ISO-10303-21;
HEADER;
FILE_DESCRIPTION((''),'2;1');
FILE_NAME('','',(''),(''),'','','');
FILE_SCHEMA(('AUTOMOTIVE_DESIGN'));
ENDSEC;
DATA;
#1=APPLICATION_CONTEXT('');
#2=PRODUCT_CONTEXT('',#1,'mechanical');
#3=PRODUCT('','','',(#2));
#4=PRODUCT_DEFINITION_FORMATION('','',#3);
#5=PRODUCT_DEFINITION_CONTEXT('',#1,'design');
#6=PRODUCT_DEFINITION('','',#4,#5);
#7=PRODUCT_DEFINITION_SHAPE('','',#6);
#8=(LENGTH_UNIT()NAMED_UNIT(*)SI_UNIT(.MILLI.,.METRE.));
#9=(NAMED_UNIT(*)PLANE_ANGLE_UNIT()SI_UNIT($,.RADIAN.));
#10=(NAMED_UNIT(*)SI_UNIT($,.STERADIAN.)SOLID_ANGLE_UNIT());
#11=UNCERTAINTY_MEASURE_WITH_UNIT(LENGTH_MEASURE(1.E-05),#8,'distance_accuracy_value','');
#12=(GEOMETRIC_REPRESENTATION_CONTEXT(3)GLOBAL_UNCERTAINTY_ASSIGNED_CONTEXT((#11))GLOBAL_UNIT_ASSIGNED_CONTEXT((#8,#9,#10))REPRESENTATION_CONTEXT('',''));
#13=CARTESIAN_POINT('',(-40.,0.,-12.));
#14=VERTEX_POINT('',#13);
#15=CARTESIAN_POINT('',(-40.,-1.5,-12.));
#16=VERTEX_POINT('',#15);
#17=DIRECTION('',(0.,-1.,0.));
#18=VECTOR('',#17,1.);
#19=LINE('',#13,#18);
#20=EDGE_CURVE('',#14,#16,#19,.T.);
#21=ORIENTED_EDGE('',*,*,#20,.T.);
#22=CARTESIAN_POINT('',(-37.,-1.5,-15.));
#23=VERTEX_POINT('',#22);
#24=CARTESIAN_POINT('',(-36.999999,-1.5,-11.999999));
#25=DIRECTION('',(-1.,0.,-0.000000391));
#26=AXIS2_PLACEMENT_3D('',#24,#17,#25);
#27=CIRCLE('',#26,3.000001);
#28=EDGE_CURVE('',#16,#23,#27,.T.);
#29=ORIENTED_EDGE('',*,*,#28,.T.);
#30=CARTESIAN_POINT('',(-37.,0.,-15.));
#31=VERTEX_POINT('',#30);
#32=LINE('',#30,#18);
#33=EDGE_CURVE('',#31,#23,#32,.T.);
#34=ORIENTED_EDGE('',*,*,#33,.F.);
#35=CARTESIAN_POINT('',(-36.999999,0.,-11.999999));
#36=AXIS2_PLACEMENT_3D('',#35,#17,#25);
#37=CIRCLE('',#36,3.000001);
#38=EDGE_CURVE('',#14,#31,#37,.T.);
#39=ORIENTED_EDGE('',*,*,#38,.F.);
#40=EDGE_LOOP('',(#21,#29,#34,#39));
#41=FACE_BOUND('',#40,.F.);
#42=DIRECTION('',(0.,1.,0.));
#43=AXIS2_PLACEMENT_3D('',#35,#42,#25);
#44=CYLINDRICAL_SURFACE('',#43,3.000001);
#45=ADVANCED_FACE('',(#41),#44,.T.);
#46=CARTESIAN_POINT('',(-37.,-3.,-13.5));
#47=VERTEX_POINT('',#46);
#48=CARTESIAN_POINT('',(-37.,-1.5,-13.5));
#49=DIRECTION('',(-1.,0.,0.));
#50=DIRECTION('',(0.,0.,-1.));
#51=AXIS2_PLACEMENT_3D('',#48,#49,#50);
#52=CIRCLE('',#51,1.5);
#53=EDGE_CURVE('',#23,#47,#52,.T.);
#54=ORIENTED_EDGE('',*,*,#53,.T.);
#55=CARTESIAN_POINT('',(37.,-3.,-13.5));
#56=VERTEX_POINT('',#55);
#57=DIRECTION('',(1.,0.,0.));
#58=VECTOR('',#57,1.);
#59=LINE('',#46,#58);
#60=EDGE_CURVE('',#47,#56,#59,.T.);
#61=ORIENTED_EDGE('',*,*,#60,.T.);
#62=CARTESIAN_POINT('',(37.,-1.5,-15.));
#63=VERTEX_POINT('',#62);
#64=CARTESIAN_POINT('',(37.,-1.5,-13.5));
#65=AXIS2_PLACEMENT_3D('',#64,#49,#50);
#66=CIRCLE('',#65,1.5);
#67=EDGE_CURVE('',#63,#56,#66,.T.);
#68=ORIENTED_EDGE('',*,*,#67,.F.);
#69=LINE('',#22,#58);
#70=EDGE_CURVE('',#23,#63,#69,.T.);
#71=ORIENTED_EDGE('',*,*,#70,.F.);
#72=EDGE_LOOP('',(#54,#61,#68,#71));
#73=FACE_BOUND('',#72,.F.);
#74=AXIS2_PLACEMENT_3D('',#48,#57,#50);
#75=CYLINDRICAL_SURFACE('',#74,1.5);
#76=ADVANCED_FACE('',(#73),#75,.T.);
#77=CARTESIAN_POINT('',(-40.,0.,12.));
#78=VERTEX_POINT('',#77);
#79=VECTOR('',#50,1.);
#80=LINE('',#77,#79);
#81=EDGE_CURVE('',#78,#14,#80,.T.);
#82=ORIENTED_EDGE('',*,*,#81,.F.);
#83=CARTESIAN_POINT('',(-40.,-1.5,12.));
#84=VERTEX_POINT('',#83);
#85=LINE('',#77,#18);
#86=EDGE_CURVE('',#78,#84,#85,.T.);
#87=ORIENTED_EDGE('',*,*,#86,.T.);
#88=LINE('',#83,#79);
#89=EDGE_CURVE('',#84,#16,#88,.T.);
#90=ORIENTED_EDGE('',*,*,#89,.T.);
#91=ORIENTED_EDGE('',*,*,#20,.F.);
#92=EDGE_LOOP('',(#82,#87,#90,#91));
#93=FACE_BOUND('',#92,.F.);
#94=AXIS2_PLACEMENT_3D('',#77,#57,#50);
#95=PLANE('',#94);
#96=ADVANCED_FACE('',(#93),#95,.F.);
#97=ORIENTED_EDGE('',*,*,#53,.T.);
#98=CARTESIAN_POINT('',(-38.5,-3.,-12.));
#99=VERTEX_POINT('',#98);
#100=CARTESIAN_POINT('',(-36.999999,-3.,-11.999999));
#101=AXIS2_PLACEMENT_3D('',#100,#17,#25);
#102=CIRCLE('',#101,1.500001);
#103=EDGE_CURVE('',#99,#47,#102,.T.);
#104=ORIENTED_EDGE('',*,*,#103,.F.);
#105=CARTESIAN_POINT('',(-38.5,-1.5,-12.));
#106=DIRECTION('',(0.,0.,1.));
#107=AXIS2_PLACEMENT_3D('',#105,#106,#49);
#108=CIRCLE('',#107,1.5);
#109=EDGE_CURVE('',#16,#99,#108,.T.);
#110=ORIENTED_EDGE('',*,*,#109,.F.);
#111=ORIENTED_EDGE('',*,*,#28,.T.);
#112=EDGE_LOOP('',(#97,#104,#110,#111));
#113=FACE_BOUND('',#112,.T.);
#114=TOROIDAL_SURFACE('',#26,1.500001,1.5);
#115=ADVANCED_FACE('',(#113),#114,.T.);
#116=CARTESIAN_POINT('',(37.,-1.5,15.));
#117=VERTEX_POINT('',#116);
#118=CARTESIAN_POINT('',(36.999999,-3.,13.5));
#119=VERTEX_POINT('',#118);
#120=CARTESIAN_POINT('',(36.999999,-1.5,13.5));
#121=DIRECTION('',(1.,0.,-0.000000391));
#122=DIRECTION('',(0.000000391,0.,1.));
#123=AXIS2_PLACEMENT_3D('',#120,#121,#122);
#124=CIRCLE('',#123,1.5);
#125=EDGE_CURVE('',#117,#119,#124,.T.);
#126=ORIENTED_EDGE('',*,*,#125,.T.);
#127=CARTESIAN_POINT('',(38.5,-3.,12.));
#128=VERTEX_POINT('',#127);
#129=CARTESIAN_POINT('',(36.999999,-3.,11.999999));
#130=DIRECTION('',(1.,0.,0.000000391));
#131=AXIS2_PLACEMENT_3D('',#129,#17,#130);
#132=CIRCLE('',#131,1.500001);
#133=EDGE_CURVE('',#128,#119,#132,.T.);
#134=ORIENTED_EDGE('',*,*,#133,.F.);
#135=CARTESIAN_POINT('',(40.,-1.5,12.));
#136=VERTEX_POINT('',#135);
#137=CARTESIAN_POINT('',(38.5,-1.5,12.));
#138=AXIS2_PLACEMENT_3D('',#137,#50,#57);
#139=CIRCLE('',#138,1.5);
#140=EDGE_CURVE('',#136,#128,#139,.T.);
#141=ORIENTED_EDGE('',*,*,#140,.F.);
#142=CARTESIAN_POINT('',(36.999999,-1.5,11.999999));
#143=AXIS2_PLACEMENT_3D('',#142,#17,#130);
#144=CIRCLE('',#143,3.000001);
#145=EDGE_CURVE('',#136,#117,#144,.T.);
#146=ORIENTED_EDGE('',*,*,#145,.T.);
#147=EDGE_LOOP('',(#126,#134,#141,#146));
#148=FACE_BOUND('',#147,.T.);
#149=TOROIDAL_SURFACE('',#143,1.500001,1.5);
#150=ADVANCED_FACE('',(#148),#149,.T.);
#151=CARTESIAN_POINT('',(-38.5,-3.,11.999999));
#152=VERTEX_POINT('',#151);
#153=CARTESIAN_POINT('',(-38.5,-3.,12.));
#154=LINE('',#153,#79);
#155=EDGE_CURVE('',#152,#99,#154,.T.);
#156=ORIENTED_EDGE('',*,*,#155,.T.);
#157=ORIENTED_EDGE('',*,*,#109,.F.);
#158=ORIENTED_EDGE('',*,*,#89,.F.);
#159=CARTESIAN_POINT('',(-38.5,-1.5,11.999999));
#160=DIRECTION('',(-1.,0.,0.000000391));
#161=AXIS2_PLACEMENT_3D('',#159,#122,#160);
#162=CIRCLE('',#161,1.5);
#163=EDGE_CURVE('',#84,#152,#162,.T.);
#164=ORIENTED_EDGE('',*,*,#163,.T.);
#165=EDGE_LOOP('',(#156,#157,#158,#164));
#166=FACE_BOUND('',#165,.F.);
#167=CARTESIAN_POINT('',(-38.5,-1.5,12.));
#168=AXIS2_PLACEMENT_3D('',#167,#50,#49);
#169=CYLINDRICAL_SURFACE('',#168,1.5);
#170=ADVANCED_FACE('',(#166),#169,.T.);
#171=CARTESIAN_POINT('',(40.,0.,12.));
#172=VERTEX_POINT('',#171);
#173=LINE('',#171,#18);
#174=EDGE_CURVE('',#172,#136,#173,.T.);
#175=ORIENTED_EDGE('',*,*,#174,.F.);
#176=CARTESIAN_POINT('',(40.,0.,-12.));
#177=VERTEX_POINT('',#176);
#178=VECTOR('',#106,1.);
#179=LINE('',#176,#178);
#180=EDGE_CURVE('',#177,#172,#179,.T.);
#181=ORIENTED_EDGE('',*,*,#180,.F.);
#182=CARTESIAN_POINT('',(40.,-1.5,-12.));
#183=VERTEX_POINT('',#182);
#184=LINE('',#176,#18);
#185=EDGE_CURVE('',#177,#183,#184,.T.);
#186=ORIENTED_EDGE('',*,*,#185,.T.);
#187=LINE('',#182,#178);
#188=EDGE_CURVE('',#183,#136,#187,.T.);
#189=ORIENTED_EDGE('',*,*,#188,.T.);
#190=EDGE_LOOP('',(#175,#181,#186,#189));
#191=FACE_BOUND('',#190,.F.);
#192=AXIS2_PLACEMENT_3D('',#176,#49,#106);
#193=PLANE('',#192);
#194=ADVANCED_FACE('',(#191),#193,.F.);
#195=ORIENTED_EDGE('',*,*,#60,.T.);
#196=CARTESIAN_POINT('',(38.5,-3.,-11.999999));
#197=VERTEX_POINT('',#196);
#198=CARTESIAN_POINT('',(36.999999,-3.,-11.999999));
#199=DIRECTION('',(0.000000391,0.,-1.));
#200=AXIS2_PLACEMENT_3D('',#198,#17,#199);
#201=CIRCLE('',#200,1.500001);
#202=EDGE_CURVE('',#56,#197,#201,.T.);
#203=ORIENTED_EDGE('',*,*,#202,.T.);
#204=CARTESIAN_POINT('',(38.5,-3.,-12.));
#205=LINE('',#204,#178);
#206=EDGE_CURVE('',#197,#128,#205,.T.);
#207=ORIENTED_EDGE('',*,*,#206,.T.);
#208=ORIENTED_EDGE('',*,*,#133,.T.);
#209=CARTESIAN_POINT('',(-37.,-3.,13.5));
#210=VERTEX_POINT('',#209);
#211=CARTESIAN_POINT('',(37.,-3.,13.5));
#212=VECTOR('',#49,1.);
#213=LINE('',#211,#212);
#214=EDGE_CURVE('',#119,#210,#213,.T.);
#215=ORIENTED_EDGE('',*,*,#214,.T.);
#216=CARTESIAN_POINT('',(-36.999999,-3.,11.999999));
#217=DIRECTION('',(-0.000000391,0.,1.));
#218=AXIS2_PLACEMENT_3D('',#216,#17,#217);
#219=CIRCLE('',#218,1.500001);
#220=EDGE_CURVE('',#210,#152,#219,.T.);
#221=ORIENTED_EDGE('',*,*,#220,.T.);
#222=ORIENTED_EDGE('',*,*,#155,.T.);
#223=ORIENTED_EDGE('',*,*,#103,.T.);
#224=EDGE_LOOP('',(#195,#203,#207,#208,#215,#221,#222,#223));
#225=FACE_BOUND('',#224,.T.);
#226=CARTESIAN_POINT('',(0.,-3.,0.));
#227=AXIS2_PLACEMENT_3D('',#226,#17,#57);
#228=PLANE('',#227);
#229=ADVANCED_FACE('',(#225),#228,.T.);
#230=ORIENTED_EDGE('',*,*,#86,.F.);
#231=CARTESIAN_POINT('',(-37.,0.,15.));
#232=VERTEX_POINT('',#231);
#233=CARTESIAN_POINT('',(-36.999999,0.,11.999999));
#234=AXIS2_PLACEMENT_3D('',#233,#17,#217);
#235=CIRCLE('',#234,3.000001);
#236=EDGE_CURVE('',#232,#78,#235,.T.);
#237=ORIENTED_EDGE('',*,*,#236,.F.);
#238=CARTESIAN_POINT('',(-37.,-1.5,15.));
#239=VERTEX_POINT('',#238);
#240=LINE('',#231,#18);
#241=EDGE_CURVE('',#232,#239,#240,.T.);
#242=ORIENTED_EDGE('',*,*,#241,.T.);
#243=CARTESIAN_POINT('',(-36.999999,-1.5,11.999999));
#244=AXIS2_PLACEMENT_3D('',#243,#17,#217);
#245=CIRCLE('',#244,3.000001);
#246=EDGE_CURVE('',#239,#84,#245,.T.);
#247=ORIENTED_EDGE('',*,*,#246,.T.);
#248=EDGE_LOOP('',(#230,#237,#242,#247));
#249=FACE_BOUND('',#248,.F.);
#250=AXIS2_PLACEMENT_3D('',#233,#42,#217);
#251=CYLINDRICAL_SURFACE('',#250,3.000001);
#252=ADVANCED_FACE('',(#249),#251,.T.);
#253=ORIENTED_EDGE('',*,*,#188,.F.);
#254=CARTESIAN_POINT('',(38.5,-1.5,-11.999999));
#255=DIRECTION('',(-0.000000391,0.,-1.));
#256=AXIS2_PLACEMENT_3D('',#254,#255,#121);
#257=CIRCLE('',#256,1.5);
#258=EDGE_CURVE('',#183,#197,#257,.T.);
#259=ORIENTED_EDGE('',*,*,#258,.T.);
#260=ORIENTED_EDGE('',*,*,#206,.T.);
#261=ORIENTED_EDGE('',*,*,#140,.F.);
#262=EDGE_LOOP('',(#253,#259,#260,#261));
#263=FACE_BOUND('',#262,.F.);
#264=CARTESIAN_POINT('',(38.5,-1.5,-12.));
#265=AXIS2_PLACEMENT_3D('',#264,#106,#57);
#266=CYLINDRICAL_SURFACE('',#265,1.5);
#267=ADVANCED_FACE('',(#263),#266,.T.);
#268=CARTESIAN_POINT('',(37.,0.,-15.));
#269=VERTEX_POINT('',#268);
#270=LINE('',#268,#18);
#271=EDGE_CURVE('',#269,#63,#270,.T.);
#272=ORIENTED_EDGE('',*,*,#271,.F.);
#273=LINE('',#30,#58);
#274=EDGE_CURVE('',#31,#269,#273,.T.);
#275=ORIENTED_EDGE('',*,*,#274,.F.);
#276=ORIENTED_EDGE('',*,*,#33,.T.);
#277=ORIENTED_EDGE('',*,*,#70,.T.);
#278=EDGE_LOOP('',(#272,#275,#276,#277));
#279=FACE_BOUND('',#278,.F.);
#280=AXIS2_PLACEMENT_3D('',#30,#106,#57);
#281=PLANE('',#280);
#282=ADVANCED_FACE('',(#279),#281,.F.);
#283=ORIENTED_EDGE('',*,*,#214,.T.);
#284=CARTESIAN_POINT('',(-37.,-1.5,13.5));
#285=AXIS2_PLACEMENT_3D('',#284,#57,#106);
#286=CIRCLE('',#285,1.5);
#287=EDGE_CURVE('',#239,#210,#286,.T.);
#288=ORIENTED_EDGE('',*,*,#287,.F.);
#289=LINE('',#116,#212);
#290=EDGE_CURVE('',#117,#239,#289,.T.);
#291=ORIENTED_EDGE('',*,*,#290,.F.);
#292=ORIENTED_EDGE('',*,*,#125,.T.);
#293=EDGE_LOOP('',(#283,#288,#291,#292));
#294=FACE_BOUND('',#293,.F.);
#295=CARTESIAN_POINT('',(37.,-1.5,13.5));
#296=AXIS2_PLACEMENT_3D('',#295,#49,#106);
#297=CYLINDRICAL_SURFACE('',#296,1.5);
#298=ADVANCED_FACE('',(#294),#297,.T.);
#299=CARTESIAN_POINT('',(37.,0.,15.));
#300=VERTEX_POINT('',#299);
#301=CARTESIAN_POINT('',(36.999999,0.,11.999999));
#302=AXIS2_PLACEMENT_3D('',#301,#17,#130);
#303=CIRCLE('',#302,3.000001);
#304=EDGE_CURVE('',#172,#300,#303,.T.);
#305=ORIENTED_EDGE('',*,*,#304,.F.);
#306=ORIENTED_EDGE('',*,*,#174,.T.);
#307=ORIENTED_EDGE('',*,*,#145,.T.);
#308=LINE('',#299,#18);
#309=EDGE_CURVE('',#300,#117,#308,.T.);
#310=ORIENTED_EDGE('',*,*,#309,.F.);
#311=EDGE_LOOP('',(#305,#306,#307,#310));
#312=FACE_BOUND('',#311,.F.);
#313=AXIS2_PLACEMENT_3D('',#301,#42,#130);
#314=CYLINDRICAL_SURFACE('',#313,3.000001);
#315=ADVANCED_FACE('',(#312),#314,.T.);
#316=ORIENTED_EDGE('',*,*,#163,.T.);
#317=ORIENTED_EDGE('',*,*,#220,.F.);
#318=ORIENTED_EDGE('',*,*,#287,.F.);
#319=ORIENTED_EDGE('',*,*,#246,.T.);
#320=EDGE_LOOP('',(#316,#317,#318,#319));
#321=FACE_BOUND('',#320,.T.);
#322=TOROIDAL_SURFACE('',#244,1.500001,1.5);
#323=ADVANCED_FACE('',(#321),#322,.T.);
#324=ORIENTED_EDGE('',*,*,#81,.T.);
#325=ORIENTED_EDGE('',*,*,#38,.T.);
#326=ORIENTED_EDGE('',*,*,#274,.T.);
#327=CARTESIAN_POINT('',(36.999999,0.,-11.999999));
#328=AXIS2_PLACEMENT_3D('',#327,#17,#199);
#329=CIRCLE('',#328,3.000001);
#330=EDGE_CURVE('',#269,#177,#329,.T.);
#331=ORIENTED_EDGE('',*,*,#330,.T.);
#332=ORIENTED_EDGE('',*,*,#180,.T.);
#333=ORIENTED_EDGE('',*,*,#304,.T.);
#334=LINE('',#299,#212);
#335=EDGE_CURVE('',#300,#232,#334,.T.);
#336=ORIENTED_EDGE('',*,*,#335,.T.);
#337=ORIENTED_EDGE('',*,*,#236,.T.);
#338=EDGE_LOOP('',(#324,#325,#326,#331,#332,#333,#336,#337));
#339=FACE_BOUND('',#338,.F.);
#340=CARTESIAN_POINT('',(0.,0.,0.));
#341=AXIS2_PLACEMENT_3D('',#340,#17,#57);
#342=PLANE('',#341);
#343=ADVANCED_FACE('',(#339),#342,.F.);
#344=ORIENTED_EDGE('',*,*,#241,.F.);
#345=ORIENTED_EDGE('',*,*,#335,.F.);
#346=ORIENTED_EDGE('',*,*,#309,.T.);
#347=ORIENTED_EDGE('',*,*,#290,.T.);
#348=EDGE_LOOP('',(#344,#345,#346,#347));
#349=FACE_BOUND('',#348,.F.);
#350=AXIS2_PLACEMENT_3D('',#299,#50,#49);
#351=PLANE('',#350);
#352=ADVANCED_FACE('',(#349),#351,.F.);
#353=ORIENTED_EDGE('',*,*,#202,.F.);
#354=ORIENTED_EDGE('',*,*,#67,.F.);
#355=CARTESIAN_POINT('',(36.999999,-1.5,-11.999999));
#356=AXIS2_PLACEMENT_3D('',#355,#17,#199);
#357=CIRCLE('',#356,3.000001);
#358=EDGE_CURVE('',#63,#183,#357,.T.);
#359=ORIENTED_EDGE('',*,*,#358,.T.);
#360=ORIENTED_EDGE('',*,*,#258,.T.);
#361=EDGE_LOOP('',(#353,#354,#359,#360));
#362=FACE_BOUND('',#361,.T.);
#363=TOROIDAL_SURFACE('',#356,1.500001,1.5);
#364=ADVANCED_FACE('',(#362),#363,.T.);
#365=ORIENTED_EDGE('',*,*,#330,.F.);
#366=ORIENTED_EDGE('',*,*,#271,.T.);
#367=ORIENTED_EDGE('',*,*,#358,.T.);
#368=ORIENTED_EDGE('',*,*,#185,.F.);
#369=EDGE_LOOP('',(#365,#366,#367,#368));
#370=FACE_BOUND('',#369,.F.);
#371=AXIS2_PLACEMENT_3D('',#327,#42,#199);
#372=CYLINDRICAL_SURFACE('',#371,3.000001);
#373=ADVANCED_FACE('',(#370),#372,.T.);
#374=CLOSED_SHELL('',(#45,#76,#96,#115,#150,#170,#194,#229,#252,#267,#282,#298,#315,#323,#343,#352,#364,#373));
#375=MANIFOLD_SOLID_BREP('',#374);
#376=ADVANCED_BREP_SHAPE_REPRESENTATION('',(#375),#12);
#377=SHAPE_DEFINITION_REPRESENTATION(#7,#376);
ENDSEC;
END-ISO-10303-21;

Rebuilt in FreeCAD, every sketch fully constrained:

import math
import FreeCAD as App
import Part
import Sketcher

V = App.Vector
Q = App.Units.Quantity


def edges_at(feature, points):
    """Names of the edges that pass closest to the given points."""
    edges = feature.Shape.Edges
    near = lambda p: min(range(len(edges)), key=lambda i: edges[i].distToShape(Part.Vertex(*p))[0])
    return sorted({f"Edge{near(p) + 1}" for p in points})

doc = App.newDocument("Part")
body = doc.addObject("PartDesign::Body", "Body")

sketch1 = body.newObject("Sketcher::SketchObject", "Sketch")
sketch1.AttachmentSupport = (doc.getObject("XZ_Plane"), [""])
sketch1.MapMode = "FlatFace"
sketch1.addGeometry(Part.LineSegment(V(-37, -15, 0), V(37, -15, 0)), False)
sketch1.addGeometry(Part.ArcOfCircle(Part.Circle(V(36.999999, -11.999999, 0), V(0, 0, 1), 3.000001), math.radians(-89.999978), math.radians(-0.000022)), False)
sketch1.addGeometry(Part.LineSegment(V(40, -12, 0), V(40, 12, 0)), False)
sketch1.addGeometry(Part.ArcOfCircle(Part.Circle(V(36.999999, 11.999999, 0), V(0, 0, 1), 3.000001), math.radians(0.000022), math.radians(89.999978)), False)
sketch1.addGeometry(Part.LineSegment(V(37, 15, 0), V(-37, 15, 0)), False)
sketch1.addGeometry(Part.ArcOfCircle(Part.Circle(V(-36.999999, 11.999999, 0), V(0, 0, 1), 3.000001), math.radians(90.000022), math.radians(179.999978)), False)
sketch1.addGeometry(Part.LineSegment(V(-40, 12, 0), V(-40, -12, 0)), False)
sketch1.addGeometry(Part.ArcOfCircle(Part.Circle(V(-36.999999, -11.999999, 0), V(0, 0, 1), 3.000001), math.radians(-179.999978), math.radians(-90.000022)), False)
sketch1.addConstraint(Sketcher.Constraint("Tangent", 0, 2, 1, 1))
sketch1.addConstraint(Sketcher.Constraint("Tangent", 1, 2, 2, 1))
sketch1.addConstraint(Sketcher.Constraint("Tangent", 2, 2, 3, 1))
sketch1.addConstraint(Sketcher.Constraint("Tangent", 3, 2, 4, 1))
sketch1.addConstraint(Sketcher.Constraint("Tangent", 4, 2, 5, 1))
sketch1.addConstraint(Sketcher.Constraint("Tangent", 5, 2, 6, 1))
sketch1.addConstraint(Sketcher.Constraint("Tangent", 6, 2, 7, 1))
sketch1.addConstraint(Sketcher.Constraint("Tangent", 7, 2, 0, 1))
sketch1.addConstraint(Sketcher.Constraint("Horizontal", 0))
sketch1.addConstraint(Sketcher.Constraint("Vertical", 2))
sketch1.addConstraint(Sketcher.Constraint("Horizontal", 4))
sketch1.addConstraint(Sketcher.Constraint("Vertical", 6))
sketch1.addConstraint(Sketcher.Constraint("Equal", 1, 3))
sketch1.addConstraint(Sketcher.Constraint("Equal", 3, 5))
sketch1.addConstraint(Sketcher.Constraint("Equal", 5, 7))
sketch1.addConstraint(Sketcher.Constraint("Symmetric", 1, 3, 5, 3, -1, 1))
sketch1.addConstraint(Sketcher.Constraint("Radius", 1, Q("3.000001 mm")))
sketch1.addConstraint(Sketcher.Constraint("DistanceX", 0, 1, 0, 2, Q("74 mm")))
sketch1.addConstraint(Sketcher.Constraint("DistanceY", 2, 1, 2, 2, Q("24 mm")))
pad1 = body.newObject("PartDesign::Pad", "Pad")
pad1.Profile = sketch1
pad1.Length = 3
doc.recompute()

fillet = body.newObject("PartDesign::Fillet", "Fillet")
fillet.Base = (pad1, edges_at(pad1, [(0, -3, -15)]))
fillet.Radius = 1.5

doc.recompute()
